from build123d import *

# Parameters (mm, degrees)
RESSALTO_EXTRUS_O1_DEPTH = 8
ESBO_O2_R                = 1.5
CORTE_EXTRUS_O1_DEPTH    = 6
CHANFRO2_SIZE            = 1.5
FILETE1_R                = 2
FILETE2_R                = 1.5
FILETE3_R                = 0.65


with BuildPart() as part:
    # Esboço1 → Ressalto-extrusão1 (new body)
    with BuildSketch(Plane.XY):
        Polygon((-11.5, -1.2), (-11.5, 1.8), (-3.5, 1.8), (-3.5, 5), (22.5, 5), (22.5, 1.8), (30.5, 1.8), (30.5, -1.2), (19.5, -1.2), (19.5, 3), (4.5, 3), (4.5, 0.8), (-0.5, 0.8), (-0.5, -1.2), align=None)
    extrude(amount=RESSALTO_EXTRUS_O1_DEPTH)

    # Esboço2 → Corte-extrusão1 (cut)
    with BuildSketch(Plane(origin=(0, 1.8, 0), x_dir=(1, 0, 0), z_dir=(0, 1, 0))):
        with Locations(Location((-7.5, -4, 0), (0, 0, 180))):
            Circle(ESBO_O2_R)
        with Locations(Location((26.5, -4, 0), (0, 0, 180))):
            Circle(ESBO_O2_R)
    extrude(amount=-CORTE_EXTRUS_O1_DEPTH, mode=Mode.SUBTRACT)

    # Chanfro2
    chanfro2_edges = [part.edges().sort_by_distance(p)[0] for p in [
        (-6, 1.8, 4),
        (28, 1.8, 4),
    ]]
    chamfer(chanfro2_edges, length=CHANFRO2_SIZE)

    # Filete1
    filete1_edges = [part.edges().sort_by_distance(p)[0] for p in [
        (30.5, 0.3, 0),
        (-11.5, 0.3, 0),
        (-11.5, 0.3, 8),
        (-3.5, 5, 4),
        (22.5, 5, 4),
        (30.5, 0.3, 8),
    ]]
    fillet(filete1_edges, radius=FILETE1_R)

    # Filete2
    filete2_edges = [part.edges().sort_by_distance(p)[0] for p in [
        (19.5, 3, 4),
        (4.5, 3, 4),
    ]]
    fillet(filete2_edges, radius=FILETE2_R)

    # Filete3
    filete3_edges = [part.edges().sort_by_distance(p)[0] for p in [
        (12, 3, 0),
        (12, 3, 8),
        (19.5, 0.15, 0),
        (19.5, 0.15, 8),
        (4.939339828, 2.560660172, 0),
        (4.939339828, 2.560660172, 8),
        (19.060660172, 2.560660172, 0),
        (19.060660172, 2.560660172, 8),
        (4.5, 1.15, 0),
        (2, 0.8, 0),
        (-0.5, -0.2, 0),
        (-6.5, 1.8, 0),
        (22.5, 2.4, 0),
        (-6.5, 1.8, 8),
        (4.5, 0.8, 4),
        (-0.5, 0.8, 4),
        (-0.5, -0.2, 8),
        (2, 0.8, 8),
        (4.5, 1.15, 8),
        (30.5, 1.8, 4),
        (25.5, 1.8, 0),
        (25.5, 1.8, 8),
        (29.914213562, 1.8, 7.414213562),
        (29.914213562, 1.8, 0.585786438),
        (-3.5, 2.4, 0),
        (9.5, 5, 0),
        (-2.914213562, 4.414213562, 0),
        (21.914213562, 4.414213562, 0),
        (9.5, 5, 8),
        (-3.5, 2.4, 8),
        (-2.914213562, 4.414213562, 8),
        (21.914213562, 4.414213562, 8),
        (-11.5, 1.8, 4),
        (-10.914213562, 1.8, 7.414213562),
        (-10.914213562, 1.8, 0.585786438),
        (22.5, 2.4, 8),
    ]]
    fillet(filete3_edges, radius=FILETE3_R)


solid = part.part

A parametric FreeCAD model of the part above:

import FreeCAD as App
import Part
import Sketcher
from FreeCAD import Vector
Q = App.Units.Quantity


def edges_at(feature, points):
    """Names of the edges that pass closest to the given points."""
    edges = feature.Shape.Edges
    near = lambda p: min(range(len(edges)), key=lambda i: edges[i].distToShape(Part.Vertex(*p))[0])
    return sorted({f"Edge{near(p) + 1}" for p in points})

doc = App.newDocument("Part")
body = doc.addObject("PartDesign::Body", "Body")

sketch1 = body.newObject("Sketcher::SketchObject", "Sketch")
sketch1.AttachmentSupport = (doc.getObject("XY_Plane"), [""])
sketch1.MapMode = "FlatFace"
sketch1.addGeometry(Part.LineSegment(Vector(-11.5, 1.8, 0), Vector(-11.5, -1.2, 0)), False)
sketch1.addGeometry(Part.LineSegment(Vector(-11.5, -1.2, 0), Vector(-0.5, -1.2, 0)), False)
sketch1.addGeometry(Part.LineSegment(Vector(-0.5, -1.2, 0), Vector(-0.5, 0.8, 0)), False)
sketch1.addGeometry(Part.LineSegment(Vector(-0.5, 0.8, 0), Vector(4.5, 0.8, 0)), False)
sketch1.addGeometry(Part.LineSegment(Vector(4.5, 0.8, 0), Vector(4.5, 3, 0)), False)
sketch1.addGeometry(Part.LineSegment(Vector(4.5, 3, 0), Vector(19.5, 3, 0)), False)
sketch1.addGeometry(Part.LineSegment(Vector(19.5, 3, 0), Vector(19.5, -1.2, 0)), False)
sketch1.addGeometry(Part.LineSegment(Vector(19.5, -1.2, 0), Vector(30.5, -1.2, 0)), False)
sketch1.addGeometry(Part.LineSegment(Vector(30.5, -1.2, 0), Vector(30.5, 1.8, 0)), False)
sketch1.addGeometry(Part.LineSegment(Vector(30.5, 1.8, 0), Vector(22.5, 1.8, 0)), False)
sketch1.addGeometry(Part.LineSegment(Vector(22.5, 1.8, 0), Vector(22.5, 5, 0)), False)
sketch1.addGeometry(Part.LineSegment(Vector(22.5, 5, 0), Vector(-3.5, 5, 0)), False)
sketch1.addGeometry(Part.LineSegment(Vector(-3.5, 5, 0), Vector(-3.5, 1.8, 0)), False)
sketch1.addGeometry(Part.LineSegment(Vector(-3.5, 1.8, 0), Vector(-11.5, 1.8, 0)), False)
sketch1.addConstraint(Sketcher.Constraint("Coincident", 0, 2, 1, 1))
sketch1.addConstraint(Sketcher.Constraint("Coincident", 1, 2, 2, 1))
sketch1.addConstraint(Sketcher.Constraint("Coincident", 2, 2, 3, 1))
sketch1.addConstraint(Sketcher.Constraint("Coincident", 3, 2, 4, 1))
sketch1.addConstraint(Sketcher.Constraint("Coincident", 4, 2, 5, 1))
sketch1.addConstraint(Sketcher.Constraint("Coincident", 5, 2, 6, 1))
sketch1.addConstraint(Sketcher.Constraint("Coincident", 6, 2, 7, 1))
sketch1.addConstraint(Sketcher.Constraint("Coincident", 7, 2, 8, 1))
sketch1.addConstraint(Sketcher.Constraint("Coincident", 8, 2, 9, 1))
sketch1.addConstraint(Sketcher.Constraint("Coincident", 9, 2, 10, 1))
sketch1.addConstraint(Sketcher.Constraint("Coincident", 10, 2, 11, 1))
sketch1.addConstraint(Sketcher.Constraint("Coincident", 11, 2, 12, 1))
sketch1.addConstraint(Sketcher.Constraint("Coincident", 12, 2, 13, 1))
sketch1.addConstraint(Sketcher.Constraint("Coincident", 13, 2, 0, 1))
sketch1.addConstraint(Sketcher.Constraint("Vertical", 0))
sketch1.addConstraint(Sketcher.Constraint("Horizontal", 1))
sketch1.addConstraint(Sketcher.Constraint("Vertical", 2))
sketch1.addConstraint(Sketcher.Constraint("Horizontal", 3))
sketch1.addConstraint(Sketcher.Constraint("Vertical", 4))
sketch1.addConstraint(Sketcher.Constraint("Horizontal", 5))
sketch1.addConstraint(Sketcher.Constraint("Vertical", 6))
sketch1.addConstraint(Sketcher.Constraint("Horizontal", 7))
sketch1.addConstraint(Sketcher.Constraint("Vertical", 8))
sketch1.addConstraint(Sketcher.Constraint("Horizontal", 9))
sketch1.addConstraint(Sketcher.Constraint("Vertical", 10))
sketch1.addConstraint(Sketcher.Constraint("Horizontal", 11))
sketch1.addConstraint(Sketcher.Constraint("Vertical", 12))
sketch1.addConstraint(Sketcher.Constraint("Horizontal", 13))
sketch1.addConstraint(Sketcher.Constraint("Horizontal", 1, 2, 6, 2))
sketch1.addConstraint(Sketcher.Constraint("Horizontal", 9, 2, 12, 2))
sketch1.addConstraint(Sketcher.Constraint("Equal", 1, 7))
sketch1.addConstraint(Sketcher.Constraint("Equal", 9, 13))
sketch1.addConstraint(Sketcher.Constraint("DistanceX", 1, 1, 1, 2, Q("11 mm")))
sketch1.addConstraint(Sketcher.Constraint("DistanceX", 3, 1, 3, 2, Q("5 mm")))
sketch1.addConstraint(Sketcher.Constraint("DistanceX", 5, 1, 5, 2, Q("15 mm")))
sketch1.addConstraint(Sketcher.Constraint("DistanceX", 9, 2, 9, 1, Q("8 mm")))
sketch1.addConstraint(Sketcher.Constraint("DistanceY", 0, 2, 0, 1, Q("3 mm")))
sketch1.addConstraint(Sketcher.Constraint("DistanceY", 2, 1, 2, 2, Q("2 mm")))
sketch1.addConstraint(Sketcher.Constraint("DistanceY", 4, 1, 4, 2, Q("2.2 mm")))
sketch1.addConstraint(Sketcher.Constraint("DistanceY", 10, 1, 10, 2, Q("3.2 mm")))
sketch1.addConstraint(Sketcher.Constraint("DistanceY", -1, 1, 4, 2, Q("3 mm")))
sketch1.addConstraint(Sketcher.Constraint("DistanceX", 0, 2, -1, 1, Q("11.5 mm")))
pad1 = body.newObject("PartDesign::Pad", "Pad")
pad1.Profile = sketch1
pad1.Length = 8

sketch2 = body.newObject("Sketcher::SketchObject", "Sketch001")
sketch2.AttachmentSupport = (doc.getObject("XZ_Plane"), [""])
sketch2.MapMode = "FlatFace"
sketch2.AttachmentOffset = App.Placement(Vector(0, 0, -1.8), App.Rotation())
sketch2.addGeometry(Part.Circle(Vector(-7.5, 4, 0), Vector(0, 0, 1), 1.5), False)
sketch2.addGeometry(Part.Circle(Vector(26.5, 4, 0), Vector(0, 0, 1), 1.5), False)
sketch2.addConstraint(Sketcher.Constraint("Equal", 0, 1))
sketch2.addConstraint(Sketcher.Constraint("Horizontal", 0, 3, 1, 3))
sketch2.addConstraint(Sketcher.Constraint("Diameter", 0, Q("3 mm")))
sketch2.addConstraint(Sketcher.Constraint("DistanceY", -1, 1, 0, 3, Q("4 mm")))
sketch2.addConstraint(Sketcher.Constraint("DistanceX", 0, 3, 1, 3, Q("34 mm")))
sketch2.addConstraint(Sketcher.Constraint("DistanceX", 0, 3, -1, 1, Q("7.5 mm")))
pocket1 = body.newObject("PartDesign::Pocket", "Pocket")
pocket1.Profile = sketch2
pocket1.Length = 6
pocket1.Reversed = True
doc.recompute()

chamfer = body.newObject("PartDesign::Chamfer", "Chamfer")
chamfer.Base = (pocket1, edges_at(pocket1, [(-6, 1.8, 4), (28, 1.8, 4)]))
chamfer.Size = 1.5
doc.recompute()

fillet = body.newObject("PartDesign::Fillet", "Fillet")
fillet.Base = (chamfer, edges_at(chamfer, [
    (30.5, 0.3, 0),
    (-11.5, 0.3, 0),
    (-11.5, 0.3, 8),
    (-3.5, 5, 4),
    (22.5, 5, 4),
    (30.5, 0.3, 8),
]))
fillet.Radius = 2
doc.recompute()

fillet2 = body.newObject("PartDesign::Fillet", "Fillet001")
fillet2.Base = (fillet, edges_at(fillet, [(19.5, 3, 4), (4.5, 3, 4)]))
fillet2.Radius = 1.5
doc.recompute()

fillet3 = body.newObject("PartDesign::Fillet", "Fillet002")
fillet3.Base = (fillet2, edges_at(fillet2, [
    (12, 3, 0),
    (12, 3, 8),
    (19.5, 0.15, 0),
    (19.5, 0.15, 8),
    (4.939, 2.561, 0),
    (4.939, 2.561, 8),
    (19.061, 2.561, 0),
    (19.061, 2.561, 8),
    (4.5, 1.15, 0),
    (2, 0.8, 0),
    (-0.5, -0.2, 0),
    (-6.5, 1.8, 0),
    (22.5, 2.4, 0),
    (-6.5, 1.8, 8),
    (4.5, 0.8, 4),
    (-0.5, 0.8, 4),
    (-0.5, -0.2, 8),
    (2, 0.8, 8),
    (4.5, 1.15, 8),
    (30.5, 1.8, 4),
    (25.5, 1.8, 0),
    (25.5, 1.8, 8),
    (29.914, 1.8, 7.414),
    (29.914, 1.8, 0.586),
    (-3.5, 2.4, 0),
    (9.5, 5, 0),
    (-2.914, 4.414, 0),
    (21.914, 4.414, 0),
    (9.5, 5, 8),
    (-3.5, 2.4, 8),
    (-2.914, 4.414, 8),
    (21.914, 4.414, 8),
    (-11.5, 1.8, 4),
    (-10.914, 1.8, 7.414),
    (-10.914, 1.8, 0.586),
    (22.5, 2.4, 8),
]))
fillet3.Radius = 0.65

doc.recompute()
